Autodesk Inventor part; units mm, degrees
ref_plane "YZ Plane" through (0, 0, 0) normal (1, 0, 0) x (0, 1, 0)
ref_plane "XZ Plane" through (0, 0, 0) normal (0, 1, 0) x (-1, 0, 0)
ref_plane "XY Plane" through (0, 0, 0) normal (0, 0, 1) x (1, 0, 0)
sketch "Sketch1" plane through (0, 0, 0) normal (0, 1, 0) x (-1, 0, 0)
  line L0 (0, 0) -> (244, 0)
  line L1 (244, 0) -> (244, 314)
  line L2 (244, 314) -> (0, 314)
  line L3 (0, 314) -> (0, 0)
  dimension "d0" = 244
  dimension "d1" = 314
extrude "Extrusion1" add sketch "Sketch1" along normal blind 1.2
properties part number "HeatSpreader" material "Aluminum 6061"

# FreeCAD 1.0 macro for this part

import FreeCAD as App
import Part
import Sketcher


def add_polygon(sketch, points):
    """Adds a closed chain of lines whose ends are joined by coincident constraints."""
    first, n = sketch.GeometryCount, len(points)
    for a, b in zip(points, points[1:] + points[:1]):
        sketch.addGeometry(Part.LineSegment(App.Vector(*a, 0), App.Vector(*b, 0)), False)
    for i in range(n):
        sketch.addConstraint(Sketcher.Constraint("Coincident", first + i, 2, first + (i + 1) % n, 1))

doc = App.newDocument("Part")
params = doc.addObject("Spreadsheet::Sheet", "Params")
for row, (alias, value) in enumerate([
    ("sketch1_width", "244 mm"),
    ("sketch1_height", "314 mm"),
    ("pad1_length", "1.2 mm"),
], start=1):
    params.set(f"A{row}", alias)
    params.set(f"B{row}", "=" + value)
    params.setAlias(f"B{row}", alias)

body = doc.addObject("PartDesign::Body", "Body")

# Sketch on XZ plane
sketch1 = doc.addObject("Sketcher::SketchObject", "Sketch")
body.addObject(sketch1)
sketch1.AttachmentSupport = (doc.XZ_Plane, [""])
sketch1.MapMode = "FlatFace"
add_polygon(sketch1, [(0, 314), (0, 0), (-244, 0), (-244, 314)])  # lines 0-3
sketch1.addConstraint(Sketcher.Constraint("Vertical", 0))
sketch1.addConstraint(Sketcher.Constraint("Horizontal", 1))
sketch1.addConstraint(Sketcher.Constraint("Vertical", 2))
sketch1.addConstraint(Sketcher.Constraint("Horizontal", 3))
sketch1.addConstraint(Sketcher.Constraint("Coincident", 0, 2, -1, 1))
sketch1.addConstraint(Sketcher.Constraint("DistanceX", 1, 2, 1, 1, 244.0))
sketch1.addConstraint(Sketcher.Constraint("DistanceY", 0, 2, 0, 1, 314.0))
sketch1.setExpression("Constraints[9]", "Params.sketch1_width")
sketch1.setExpression("Constraints[10]", "Params.sketch1_height")
pad1 = doc.addObject("PartDesign::Pad", "Pad")
body.addObject(pad1)
pad1.Profile = sketch1
pad1.setExpression("Length", "Params.pad1_length")
pad1.Reversed = True

doc.recompute()
